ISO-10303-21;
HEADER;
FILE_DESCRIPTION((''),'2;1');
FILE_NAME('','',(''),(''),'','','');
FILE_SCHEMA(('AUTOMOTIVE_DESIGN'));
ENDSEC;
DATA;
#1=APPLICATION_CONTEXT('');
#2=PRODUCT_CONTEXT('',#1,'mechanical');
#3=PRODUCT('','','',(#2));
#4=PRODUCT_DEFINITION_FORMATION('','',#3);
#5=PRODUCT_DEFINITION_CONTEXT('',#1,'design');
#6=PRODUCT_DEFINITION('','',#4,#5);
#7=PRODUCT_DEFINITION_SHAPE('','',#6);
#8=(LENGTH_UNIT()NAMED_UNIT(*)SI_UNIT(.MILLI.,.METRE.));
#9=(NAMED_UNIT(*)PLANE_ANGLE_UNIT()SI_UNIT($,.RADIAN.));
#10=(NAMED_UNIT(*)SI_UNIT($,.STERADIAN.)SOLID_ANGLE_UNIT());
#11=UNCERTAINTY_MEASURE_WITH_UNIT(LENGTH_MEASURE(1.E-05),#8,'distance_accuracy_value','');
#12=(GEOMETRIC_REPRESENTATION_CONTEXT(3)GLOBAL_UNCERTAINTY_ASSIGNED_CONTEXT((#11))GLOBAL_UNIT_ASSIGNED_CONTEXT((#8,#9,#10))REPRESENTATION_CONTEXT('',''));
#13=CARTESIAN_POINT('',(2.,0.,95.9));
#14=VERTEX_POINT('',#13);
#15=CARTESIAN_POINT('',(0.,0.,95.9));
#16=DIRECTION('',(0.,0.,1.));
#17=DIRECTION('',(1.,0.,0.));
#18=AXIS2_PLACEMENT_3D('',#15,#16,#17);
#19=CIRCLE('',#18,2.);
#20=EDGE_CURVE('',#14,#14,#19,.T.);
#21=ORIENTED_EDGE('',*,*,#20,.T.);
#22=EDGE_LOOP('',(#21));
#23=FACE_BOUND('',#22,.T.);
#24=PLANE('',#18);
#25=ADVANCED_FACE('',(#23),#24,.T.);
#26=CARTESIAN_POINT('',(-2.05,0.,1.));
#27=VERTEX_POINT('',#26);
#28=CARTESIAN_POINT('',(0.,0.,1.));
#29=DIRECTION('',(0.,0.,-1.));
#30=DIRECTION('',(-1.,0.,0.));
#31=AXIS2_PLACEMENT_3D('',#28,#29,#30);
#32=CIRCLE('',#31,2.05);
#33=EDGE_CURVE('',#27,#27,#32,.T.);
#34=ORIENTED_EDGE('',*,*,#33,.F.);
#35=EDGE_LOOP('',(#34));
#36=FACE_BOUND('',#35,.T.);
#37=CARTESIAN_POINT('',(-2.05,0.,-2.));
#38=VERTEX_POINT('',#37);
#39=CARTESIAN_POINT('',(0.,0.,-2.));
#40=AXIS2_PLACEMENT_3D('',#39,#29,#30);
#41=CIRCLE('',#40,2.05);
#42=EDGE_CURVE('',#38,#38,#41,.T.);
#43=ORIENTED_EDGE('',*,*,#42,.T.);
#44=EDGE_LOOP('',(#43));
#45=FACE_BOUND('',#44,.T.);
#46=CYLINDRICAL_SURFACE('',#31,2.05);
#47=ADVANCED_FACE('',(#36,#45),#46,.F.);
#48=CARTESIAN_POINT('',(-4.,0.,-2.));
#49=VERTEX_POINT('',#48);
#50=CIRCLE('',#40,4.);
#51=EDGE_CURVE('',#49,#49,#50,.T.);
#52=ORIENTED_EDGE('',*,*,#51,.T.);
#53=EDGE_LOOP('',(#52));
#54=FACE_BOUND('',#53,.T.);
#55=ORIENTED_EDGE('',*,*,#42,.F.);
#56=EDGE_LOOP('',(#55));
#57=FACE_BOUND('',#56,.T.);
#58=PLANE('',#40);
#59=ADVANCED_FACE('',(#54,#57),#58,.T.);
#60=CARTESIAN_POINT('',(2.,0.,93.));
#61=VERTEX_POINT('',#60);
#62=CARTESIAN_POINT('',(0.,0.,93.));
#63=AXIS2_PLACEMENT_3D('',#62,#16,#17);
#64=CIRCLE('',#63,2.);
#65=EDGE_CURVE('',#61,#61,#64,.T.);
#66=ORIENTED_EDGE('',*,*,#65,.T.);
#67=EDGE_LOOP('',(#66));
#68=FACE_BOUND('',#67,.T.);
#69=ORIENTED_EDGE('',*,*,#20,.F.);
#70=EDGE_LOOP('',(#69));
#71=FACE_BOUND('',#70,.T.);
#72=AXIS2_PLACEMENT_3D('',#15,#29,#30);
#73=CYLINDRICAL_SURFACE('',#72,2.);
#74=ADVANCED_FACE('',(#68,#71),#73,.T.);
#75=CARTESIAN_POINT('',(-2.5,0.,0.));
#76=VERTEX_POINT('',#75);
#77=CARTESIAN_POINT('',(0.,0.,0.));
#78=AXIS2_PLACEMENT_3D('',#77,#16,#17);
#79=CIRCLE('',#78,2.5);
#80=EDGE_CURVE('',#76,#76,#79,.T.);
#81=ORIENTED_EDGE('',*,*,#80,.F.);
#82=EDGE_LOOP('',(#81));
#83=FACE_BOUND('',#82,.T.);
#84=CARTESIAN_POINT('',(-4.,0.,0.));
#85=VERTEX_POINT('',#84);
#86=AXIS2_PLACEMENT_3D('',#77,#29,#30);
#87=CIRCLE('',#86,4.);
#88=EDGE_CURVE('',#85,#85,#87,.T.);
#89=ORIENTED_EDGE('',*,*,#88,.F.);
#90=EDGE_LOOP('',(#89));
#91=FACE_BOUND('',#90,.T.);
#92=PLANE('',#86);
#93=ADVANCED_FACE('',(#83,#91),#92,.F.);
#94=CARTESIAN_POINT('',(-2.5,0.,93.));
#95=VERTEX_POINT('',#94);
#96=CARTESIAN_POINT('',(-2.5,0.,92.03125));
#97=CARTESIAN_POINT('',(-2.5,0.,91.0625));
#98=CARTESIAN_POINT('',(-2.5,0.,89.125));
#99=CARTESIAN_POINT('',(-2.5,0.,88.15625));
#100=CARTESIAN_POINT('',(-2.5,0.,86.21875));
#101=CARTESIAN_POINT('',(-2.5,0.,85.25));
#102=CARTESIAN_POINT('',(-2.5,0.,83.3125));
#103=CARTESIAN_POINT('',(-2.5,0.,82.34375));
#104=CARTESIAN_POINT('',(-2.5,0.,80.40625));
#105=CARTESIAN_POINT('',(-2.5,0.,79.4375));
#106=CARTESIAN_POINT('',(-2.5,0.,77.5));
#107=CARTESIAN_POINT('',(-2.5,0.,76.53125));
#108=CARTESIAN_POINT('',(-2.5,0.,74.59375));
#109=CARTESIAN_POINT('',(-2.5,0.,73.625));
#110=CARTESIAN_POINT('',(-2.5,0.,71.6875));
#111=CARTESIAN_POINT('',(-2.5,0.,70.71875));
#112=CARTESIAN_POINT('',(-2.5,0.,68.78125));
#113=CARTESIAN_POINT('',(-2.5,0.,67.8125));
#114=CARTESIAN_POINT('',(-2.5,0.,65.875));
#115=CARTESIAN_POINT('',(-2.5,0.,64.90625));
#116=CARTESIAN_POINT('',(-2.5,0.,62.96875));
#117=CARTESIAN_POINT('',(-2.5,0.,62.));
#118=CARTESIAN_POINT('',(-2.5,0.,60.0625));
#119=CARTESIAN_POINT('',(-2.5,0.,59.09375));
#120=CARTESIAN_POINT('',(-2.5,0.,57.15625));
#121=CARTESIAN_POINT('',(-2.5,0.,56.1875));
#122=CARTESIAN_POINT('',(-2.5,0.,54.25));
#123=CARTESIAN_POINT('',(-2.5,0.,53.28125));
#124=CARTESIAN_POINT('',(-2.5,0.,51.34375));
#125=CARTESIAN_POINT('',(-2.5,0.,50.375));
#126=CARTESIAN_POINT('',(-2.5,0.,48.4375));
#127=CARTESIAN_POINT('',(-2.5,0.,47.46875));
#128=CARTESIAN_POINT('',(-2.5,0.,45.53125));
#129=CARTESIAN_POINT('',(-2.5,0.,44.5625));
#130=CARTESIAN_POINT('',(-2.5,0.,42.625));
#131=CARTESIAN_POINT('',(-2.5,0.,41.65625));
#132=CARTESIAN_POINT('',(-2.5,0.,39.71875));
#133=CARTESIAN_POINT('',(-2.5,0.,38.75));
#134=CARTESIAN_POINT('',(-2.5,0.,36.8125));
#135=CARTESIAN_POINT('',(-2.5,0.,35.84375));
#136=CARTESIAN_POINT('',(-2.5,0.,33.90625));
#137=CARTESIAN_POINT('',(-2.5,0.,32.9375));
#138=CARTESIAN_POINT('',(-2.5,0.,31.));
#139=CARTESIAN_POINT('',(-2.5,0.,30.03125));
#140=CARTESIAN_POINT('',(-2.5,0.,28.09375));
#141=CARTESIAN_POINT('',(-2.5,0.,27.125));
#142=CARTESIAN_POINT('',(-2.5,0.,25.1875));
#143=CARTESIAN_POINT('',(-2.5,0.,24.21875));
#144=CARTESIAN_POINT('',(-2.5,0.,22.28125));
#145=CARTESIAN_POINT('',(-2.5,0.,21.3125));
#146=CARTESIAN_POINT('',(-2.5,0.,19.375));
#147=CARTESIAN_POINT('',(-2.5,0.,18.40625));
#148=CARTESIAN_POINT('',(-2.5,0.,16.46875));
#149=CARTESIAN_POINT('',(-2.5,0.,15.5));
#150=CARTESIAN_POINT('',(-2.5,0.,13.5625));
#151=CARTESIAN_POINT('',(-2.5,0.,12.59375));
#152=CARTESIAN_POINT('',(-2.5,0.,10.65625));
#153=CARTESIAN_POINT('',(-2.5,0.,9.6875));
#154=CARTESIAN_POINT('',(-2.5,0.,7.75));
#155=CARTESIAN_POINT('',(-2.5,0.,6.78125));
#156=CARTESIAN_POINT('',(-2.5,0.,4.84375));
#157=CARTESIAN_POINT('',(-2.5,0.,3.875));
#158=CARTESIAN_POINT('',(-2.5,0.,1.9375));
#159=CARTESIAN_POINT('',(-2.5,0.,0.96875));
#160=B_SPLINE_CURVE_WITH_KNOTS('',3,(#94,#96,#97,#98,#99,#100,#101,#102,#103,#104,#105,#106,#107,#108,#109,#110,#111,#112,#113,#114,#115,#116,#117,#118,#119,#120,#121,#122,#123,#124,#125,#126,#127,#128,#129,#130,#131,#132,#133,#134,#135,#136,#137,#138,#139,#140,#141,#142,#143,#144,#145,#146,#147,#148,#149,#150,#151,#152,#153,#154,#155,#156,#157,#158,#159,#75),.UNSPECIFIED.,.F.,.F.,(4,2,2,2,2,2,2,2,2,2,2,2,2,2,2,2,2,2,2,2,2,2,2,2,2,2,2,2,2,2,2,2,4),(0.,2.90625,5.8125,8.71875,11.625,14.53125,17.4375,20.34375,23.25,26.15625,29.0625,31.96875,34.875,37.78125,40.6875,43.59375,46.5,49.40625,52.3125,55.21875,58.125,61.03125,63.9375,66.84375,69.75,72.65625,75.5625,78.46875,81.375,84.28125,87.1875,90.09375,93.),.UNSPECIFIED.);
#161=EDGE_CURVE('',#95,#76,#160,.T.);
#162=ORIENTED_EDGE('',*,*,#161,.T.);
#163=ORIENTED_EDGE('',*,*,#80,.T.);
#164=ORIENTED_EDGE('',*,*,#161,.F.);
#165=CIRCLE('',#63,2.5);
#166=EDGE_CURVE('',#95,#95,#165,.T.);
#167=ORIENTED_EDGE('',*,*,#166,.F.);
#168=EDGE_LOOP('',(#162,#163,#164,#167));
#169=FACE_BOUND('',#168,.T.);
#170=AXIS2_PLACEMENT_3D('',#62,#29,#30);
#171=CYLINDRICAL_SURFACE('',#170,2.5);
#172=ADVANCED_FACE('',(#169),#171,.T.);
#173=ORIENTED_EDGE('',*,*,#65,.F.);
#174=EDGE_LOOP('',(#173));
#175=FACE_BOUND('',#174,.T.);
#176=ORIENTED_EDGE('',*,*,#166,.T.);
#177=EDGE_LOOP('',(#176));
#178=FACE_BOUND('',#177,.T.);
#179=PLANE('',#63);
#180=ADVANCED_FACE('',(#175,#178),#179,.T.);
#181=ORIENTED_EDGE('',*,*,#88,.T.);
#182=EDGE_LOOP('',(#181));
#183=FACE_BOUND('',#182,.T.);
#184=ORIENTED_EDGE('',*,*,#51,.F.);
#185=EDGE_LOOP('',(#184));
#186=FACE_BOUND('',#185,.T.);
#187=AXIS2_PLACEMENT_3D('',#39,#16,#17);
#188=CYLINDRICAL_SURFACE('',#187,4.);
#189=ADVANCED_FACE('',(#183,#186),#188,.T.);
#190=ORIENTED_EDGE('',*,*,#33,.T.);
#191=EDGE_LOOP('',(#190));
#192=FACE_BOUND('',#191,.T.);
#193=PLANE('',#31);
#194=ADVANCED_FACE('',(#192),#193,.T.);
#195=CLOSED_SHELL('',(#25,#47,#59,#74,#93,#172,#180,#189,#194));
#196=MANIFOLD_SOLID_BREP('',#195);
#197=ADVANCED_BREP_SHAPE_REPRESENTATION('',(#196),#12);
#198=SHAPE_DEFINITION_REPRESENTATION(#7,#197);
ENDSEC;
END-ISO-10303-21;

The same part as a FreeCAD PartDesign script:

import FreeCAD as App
import Part
import Sketcher

V = App.Vector
Q = App.Units.Quantity

doc = App.newDocument("Part")
params = doc.addObject("Spreadsheet::Sheet", "Params")
for row, (alias, value) in enumerate([
    ("sketch1_diameter", "5 mm"),
    ("pad1_length", "93 mm"),
    ("sketch2_diameter", "8 mm"),
    ("pad2_length", "2 mm"),
    ("sketch3_diameter", "4.1 mm"),
    ("pocket1_length", "3 mm"),
    ("sketch4_diameter", "4 mm"),
    ("pad3_length", "2.9 mm"),
], start=1):
    params.set(f"A{row}", alias)
    params.set(f"B{row}", "=" + value)
    params.setAlias(f"B{row}", alias)

body = doc.addObject("PartDesign::Body", "Body")

# Sketch on XY plane
sketch1 = doc.addObject("Sketcher::SketchObject", "Sketch")
body.addObject(sketch1)
sketch1.AttachmentSupport = (doc.XY_Plane, [""])
sketch1.MapMode = "FlatFace"
sketch1.addGeometry(Part.Circle(V(0, 0, 0), V(0, 0, 1), 2.5), False)
sketch1.addConstraint([
    Sketcher.Constraint("Coincident", 0, 3, -1, 1),
    Sketcher.Constraint("Diameter", 0, Q("5 mm")),
])
sketch1.setExpression("Constraints[1]", "Params.sketch1_diameter")
pad1 = doc.addObject("PartDesign::Pad", "Pad")
body.addObject(pad1)
pad1.Profile = sketch1
pad1.setExpression("Length", "Params.pad1_length")

# Sketch on XY plane
sketch2 = doc.addObject("Sketcher::SketchObject", "Sketch001")
body.addObject(sketch2)
sketch2.AttachmentSupport = (doc.XY_Plane, [""])
sketch2.MapMode = "FlatFace"
sketch2.addGeometry(Part.Circle(V(0, 0, 0), V(0, 0, 1), 4), False)
sketch2.addConstraint([
    Sketcher.Constraint("Coincident", 0, 3, -1, 1),
    Sketcher.Constraint("Diameter", 0, Q("8 mm")),
])
sketch2.setExpression("Constraints[1]", "Params.sketch2_diameter")
pad2 = doc.addObject("PartDesign::Pad", "Pad001")
body.addObject(pad2)
pad2.Profile = sketch2
pad2.setExpression("Length", "Params.pad2_length")
pad2.Reversed = True

# Sketch on XY plane
sketch3 = doc.addObject("Sketcher::SketchObject", "Sketch002")
body.addObject(sketch3)
sketch3.AttachmentSupport = (doc.XY_Plane, [""])
sketch3.MapMode = "FlatFace"
sketch3.AttachmentOffset = App.Placement(V(0, 0, -2), App.Rotation())
sketch3.addGeometry(Part.Circle(V(0, 0, 0), V(0, 0, 1), 2), False)
sketch3.addConstraint([
    Sketcher.Constraint("Coincident", 0, 3, -1, 1),
    Sketcher.Constraint("Diameter", 0, Q("4.1 mm")),
])
sketch3.setExpression("Constraints[1]", "Params.sketch3_diameter")
pocket1 = doc.addObject("PartDesign::Pocket", "Pocket")
body.addObject(pocket1)
pocket1.Profile = sketch3
pocket1.setExpression("Length", "Params.pocket1_length")
pocket1.Reversed = True

# Sketch on XY plane
sketch4 = doc.addObject("Sketcher::SketchObject", "Sketch003")
body.addObject(sketch4)
sketch4.AttachmentSupport = (doc.XY_Plane, [""])
sketch4.MapMode = "FlatFace"
sketch4.AttachmentOffset = App.Placement(V(0, 0, 93), App.Rotation())
sketch4.addGeometry(Part.Circle(V(0, 0, 0), V(0, 0, 1), 2), False)
sketch4.addConstraint([
    Sketcher.Constraint("Coincident", 0, 3, -1, 1),
    Sketcher.Constraint("Diameter", 0, Q("4 mm")),
])
sketch4.setExpression("Constraints[1]", "Params.sketch4_diameter")
pad3 = doc.addObject("PartDesign::Pad", "Pad002")
body.addObject(pad3)
pad3.Profile = sketch4
pad3.setExpression("Length", "Params.pad3_length")

doc.recompute()
